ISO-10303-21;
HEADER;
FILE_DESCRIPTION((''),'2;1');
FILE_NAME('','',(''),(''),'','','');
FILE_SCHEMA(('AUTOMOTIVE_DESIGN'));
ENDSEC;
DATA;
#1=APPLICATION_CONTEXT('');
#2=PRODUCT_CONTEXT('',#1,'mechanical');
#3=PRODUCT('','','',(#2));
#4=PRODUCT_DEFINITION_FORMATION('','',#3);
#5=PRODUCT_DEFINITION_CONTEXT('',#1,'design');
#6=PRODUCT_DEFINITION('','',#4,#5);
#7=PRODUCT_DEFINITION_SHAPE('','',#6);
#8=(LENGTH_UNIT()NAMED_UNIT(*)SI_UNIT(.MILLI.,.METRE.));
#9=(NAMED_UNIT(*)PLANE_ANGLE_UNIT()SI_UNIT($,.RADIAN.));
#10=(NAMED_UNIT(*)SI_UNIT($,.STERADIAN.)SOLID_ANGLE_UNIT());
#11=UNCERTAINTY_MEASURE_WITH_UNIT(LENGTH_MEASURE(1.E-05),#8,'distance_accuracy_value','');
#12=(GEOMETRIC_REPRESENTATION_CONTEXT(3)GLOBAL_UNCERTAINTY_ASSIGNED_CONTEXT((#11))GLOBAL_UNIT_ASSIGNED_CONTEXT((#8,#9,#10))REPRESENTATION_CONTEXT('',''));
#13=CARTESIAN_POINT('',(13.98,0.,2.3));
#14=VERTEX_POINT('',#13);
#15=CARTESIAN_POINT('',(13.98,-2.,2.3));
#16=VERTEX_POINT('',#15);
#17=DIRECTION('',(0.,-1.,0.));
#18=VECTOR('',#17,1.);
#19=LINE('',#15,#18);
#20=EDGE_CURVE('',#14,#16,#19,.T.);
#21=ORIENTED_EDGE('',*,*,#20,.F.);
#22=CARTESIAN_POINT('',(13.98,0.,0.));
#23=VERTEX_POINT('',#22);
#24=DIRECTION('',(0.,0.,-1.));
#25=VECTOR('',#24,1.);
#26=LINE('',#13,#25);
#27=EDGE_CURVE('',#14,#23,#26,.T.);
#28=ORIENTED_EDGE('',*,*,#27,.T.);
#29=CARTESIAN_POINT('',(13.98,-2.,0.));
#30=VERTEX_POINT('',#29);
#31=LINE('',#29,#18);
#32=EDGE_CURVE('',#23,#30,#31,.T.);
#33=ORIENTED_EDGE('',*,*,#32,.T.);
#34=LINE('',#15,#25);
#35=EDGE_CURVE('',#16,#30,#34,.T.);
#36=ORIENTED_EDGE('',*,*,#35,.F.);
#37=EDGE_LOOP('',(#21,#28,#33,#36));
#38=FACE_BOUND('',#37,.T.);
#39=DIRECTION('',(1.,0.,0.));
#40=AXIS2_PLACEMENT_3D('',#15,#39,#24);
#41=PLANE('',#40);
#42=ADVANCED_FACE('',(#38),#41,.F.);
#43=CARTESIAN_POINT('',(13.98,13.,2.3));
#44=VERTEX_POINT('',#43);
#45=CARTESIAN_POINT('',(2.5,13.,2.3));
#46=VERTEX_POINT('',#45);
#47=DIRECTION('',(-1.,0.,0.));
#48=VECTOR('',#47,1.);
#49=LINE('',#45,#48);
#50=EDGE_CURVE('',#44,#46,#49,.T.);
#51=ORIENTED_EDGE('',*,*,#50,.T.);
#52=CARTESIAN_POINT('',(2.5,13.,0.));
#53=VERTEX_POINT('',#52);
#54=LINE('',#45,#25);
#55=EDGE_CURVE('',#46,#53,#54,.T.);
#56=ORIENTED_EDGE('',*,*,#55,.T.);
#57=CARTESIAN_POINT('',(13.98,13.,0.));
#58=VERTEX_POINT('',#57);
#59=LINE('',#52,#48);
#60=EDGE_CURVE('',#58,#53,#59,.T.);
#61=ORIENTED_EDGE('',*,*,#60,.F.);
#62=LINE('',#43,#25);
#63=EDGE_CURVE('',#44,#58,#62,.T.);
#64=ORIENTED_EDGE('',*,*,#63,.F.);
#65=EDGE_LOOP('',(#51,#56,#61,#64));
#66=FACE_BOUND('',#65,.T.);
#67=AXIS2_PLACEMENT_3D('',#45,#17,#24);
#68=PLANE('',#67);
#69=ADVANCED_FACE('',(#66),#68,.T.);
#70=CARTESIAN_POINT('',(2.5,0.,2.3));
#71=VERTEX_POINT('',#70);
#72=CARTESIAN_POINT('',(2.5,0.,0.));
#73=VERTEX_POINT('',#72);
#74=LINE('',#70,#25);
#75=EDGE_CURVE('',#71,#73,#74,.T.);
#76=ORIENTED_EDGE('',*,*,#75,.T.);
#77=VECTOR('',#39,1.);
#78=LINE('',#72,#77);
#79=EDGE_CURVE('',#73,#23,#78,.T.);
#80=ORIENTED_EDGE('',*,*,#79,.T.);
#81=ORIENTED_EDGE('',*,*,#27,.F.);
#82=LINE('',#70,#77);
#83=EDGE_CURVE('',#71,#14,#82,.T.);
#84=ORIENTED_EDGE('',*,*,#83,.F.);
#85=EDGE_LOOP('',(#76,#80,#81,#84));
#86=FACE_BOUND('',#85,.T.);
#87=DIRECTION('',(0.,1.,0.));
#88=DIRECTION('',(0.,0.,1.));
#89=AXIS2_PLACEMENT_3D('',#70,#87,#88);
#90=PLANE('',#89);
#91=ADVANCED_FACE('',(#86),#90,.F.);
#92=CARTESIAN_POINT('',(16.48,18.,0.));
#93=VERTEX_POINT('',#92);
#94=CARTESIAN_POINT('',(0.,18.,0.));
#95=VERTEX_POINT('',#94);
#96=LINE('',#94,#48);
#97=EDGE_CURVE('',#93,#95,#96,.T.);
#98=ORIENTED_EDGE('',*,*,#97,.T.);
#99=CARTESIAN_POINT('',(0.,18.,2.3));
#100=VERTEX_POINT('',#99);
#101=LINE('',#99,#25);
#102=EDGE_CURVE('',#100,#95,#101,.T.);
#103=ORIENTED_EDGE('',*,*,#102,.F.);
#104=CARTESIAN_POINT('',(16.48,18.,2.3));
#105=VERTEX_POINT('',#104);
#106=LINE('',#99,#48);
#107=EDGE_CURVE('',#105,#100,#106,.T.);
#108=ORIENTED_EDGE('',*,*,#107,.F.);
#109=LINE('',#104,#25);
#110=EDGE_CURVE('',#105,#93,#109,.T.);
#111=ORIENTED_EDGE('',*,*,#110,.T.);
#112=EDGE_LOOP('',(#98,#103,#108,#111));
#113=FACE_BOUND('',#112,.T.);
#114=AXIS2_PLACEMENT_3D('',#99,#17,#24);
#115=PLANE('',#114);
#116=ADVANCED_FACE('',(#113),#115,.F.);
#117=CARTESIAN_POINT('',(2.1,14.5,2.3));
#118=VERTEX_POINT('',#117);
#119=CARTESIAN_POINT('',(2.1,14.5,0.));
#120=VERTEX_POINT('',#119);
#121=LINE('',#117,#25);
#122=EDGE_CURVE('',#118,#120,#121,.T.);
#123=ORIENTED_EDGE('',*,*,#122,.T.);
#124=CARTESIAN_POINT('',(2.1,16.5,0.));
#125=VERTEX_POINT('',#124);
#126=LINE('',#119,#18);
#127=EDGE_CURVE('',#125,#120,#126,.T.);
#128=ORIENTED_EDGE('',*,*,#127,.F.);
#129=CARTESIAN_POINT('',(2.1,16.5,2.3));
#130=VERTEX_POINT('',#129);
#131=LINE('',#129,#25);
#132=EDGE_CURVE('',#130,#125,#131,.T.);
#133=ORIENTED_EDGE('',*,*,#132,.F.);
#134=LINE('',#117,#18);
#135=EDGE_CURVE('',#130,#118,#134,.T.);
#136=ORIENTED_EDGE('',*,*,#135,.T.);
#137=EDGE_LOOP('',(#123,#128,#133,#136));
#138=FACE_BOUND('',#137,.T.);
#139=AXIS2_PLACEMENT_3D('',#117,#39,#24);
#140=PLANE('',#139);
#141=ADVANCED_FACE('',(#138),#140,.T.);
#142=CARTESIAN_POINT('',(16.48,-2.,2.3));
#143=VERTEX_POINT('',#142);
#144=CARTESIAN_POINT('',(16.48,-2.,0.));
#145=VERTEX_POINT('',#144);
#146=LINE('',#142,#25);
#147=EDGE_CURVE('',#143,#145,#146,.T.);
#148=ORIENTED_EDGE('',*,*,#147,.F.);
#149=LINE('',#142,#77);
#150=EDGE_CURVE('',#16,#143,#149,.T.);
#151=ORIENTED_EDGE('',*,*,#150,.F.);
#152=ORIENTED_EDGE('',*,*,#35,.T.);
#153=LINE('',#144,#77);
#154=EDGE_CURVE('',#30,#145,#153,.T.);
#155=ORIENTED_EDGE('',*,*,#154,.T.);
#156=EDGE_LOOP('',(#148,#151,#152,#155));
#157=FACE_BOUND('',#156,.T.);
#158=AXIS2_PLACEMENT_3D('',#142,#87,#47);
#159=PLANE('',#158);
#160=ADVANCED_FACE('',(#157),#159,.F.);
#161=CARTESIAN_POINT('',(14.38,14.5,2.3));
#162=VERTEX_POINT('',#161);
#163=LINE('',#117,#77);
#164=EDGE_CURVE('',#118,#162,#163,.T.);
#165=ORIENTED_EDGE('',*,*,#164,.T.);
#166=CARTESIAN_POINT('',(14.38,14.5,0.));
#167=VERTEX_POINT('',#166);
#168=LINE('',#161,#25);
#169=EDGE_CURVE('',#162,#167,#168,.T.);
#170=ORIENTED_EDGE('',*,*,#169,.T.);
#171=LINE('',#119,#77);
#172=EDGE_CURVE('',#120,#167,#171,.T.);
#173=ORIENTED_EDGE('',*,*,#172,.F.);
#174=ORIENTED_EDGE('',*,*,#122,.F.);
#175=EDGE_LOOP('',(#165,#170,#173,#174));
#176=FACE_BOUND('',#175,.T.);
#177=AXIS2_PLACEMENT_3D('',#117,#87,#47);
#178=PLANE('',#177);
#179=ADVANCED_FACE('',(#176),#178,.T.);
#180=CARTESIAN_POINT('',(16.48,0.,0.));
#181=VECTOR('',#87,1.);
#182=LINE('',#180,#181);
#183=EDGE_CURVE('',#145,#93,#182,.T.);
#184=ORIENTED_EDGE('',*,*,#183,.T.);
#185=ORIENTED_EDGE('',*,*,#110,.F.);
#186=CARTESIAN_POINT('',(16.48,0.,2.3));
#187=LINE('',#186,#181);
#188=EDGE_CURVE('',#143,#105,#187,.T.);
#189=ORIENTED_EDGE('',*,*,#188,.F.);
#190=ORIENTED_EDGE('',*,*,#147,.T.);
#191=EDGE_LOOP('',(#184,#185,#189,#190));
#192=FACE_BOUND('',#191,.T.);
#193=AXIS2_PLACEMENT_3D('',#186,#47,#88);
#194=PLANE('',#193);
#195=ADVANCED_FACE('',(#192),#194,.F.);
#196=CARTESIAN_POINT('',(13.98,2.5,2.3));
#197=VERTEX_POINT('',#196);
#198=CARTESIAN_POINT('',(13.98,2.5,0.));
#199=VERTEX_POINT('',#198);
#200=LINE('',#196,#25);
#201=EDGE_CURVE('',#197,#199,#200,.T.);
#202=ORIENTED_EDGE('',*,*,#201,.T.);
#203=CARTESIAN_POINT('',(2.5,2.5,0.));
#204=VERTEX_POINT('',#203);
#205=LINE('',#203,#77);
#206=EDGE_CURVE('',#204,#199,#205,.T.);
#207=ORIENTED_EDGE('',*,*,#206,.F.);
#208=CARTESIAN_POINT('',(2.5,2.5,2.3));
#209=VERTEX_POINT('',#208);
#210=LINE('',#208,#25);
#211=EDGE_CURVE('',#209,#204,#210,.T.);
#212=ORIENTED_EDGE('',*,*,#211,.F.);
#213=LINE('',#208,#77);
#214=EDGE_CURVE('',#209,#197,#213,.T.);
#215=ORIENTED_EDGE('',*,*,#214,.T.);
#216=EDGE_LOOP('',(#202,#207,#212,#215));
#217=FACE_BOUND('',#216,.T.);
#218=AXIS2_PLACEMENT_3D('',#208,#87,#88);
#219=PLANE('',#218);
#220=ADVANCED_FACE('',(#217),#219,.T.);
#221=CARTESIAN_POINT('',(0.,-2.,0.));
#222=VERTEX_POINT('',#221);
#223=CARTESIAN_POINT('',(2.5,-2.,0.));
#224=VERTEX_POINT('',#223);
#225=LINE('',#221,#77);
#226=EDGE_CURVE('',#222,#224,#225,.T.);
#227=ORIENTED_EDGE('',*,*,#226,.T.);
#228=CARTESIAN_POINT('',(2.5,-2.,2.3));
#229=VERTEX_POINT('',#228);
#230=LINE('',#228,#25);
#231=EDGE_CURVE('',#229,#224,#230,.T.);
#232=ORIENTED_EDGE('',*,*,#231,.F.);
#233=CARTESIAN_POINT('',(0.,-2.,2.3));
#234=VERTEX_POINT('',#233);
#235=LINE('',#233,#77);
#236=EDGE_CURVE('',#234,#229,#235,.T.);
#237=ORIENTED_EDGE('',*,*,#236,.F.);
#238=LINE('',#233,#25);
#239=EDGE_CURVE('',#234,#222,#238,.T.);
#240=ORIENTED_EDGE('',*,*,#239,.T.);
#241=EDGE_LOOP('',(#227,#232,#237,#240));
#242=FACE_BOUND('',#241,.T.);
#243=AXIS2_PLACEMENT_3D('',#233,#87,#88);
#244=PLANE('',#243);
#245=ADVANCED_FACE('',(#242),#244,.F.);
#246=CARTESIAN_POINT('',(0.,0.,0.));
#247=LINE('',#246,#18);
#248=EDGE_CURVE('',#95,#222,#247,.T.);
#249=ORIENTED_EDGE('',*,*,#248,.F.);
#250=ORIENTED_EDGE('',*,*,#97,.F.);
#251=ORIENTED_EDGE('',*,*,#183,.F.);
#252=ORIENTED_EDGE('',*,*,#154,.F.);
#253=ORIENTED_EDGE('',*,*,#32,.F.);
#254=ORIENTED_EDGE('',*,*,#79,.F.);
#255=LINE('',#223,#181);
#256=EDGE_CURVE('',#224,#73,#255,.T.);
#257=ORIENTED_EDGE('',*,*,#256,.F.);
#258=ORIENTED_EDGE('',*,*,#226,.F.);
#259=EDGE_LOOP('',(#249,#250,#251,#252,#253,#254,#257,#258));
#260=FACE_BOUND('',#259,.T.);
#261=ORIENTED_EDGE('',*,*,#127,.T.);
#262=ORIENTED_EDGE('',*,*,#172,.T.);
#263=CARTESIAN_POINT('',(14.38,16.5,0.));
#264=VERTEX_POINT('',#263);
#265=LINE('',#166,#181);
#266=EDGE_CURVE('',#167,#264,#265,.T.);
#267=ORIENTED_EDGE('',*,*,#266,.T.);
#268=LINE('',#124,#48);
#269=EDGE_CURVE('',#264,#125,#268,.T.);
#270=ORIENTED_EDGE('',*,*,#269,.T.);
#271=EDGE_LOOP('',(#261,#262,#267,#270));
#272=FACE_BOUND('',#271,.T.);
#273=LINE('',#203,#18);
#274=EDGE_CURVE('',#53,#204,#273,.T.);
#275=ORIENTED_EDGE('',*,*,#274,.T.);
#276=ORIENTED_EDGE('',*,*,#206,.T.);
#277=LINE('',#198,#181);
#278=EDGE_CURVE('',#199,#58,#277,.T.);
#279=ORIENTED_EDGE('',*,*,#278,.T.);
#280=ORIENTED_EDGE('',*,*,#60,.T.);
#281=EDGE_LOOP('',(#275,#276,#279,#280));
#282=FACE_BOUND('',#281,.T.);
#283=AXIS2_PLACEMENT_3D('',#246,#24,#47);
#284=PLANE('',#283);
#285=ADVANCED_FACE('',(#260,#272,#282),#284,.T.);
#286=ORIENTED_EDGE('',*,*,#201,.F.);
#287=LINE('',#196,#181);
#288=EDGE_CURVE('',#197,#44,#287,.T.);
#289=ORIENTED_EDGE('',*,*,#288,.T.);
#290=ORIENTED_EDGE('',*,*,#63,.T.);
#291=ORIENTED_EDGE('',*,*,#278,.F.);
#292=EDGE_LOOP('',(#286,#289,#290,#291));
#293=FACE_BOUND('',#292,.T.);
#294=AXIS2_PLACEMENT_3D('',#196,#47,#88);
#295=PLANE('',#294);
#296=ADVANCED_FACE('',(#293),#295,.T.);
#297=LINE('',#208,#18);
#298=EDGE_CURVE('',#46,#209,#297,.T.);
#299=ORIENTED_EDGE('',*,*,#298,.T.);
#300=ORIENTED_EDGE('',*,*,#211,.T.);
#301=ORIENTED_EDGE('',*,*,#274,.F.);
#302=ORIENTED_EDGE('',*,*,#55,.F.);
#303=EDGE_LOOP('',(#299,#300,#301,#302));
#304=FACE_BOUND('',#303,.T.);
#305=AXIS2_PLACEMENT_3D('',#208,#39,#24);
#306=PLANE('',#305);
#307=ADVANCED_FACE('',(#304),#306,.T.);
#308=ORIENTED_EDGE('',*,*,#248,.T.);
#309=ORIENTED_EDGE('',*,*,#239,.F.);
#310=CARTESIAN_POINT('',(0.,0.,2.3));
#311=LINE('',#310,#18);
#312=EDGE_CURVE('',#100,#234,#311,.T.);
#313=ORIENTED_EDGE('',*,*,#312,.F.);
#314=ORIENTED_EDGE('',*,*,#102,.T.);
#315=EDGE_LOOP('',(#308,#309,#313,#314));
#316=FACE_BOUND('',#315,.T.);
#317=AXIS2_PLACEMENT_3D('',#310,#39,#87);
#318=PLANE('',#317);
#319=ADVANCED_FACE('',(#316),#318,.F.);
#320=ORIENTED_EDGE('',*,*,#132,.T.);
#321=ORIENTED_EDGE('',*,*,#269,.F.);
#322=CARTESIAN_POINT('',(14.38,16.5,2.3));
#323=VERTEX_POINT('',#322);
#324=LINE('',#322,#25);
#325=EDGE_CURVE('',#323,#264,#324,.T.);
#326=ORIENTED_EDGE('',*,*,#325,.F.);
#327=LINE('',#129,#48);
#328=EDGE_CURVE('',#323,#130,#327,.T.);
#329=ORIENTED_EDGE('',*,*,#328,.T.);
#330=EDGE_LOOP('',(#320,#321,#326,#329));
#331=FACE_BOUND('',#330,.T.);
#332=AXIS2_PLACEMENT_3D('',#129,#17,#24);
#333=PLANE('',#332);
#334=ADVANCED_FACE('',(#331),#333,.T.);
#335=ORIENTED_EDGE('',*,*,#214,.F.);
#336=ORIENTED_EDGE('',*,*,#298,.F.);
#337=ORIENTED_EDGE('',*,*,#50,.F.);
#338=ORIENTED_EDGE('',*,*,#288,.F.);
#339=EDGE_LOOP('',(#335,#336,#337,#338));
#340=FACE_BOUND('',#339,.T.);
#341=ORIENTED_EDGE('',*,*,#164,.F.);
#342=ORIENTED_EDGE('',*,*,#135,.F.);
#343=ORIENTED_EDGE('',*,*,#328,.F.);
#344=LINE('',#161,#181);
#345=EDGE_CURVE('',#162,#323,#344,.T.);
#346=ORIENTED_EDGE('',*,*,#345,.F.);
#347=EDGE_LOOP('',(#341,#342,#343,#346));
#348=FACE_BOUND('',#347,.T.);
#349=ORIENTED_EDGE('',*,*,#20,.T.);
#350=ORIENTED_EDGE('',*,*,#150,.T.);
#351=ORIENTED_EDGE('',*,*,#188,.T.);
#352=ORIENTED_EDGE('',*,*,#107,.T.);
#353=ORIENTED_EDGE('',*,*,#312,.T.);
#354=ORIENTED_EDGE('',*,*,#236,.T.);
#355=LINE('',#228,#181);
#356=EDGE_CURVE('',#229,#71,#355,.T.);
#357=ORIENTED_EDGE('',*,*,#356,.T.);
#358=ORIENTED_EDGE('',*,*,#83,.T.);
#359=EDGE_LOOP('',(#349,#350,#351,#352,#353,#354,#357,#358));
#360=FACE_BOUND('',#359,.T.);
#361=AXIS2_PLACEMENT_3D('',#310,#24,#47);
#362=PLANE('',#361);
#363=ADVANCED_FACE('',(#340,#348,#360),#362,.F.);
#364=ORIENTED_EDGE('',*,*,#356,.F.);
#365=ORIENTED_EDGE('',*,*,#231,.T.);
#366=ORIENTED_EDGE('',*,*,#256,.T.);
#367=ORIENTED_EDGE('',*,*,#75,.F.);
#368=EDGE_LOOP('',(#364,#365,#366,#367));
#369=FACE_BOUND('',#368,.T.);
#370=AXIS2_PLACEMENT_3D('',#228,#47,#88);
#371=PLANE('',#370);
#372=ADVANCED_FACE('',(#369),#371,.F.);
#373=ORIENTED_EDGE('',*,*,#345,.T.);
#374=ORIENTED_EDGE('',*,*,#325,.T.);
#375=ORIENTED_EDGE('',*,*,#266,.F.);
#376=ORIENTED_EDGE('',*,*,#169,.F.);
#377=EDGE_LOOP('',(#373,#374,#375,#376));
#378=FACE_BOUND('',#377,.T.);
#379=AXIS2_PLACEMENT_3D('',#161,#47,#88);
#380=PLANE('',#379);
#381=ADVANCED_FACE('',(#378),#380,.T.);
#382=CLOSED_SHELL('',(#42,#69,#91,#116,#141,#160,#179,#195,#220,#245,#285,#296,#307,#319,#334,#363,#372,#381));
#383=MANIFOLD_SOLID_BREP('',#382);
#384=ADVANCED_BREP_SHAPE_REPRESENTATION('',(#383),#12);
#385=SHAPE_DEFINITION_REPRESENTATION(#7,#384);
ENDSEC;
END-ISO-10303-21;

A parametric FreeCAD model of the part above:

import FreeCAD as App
import Part
import Sketcher
Q = App.Units.Quantity


def add_polygon(sketch, points):
    """Adds a closed chain of lines whose ends are joined by coincident constraints."""
    first, n = sketch.GeometryCount, len(points)
    for a, b in zip(points, points[1:] + points[:1]):
        sketch.addGeometry(Part.LineSegment(App.Vector(*a, 0), App.Vector(*b, 0)), False)
    for i in range(n):
        sketch.addConstraint(Sketcher.Constraint("Coincident", first + i, 2, first + (i + 1) % n, 1))

doc = App.newDocument("Part")
body = doc.addObject("PartDesign::Body", "Body")

# Sketch on XY plane
sketch1 = body.newObject("Sketcher::SketchObject", "Sketch")
sketch1.AttachmentSupport = (doc.getObject("XY_Plane"), [""])
sketch1.MapMode = "FlatFace"
add_polygon(sketch1, [(0, -2), (2.5, -2), (2.5, 0), (14, 0), (14, -2), (16.5, -2), (16.5, 18), (0, 18)])  # lines 0-7
add_polygon(sketch1, [(14, 2.5), (2.5, 2.5), (2.5, 13), (14, 13)])  # lines 8-11
add_polygon(sketch1, [(14.4, 14.5), (2.1, 14.5), (2.1, 16.5), (14.4, 16.5)])  # lines 12-15
sketch1.addConstraint([
    Sketcher.Constraint("Horizontal", 0),
    Sketcher.Constraint("Vertical", 1),
    Sketcher.Constraint("Horizontal", 2),
    Sketcher.Constraint("Vertical", 3),
    Sketcher.Constraint("Horizontal", 4),
    Sketcher.Constraint("Vertical", 5),
    Sketcher.Constraint("Horizontal", 6),
    Sketcher.Constraint("Vertical", 7),
    Sketcher.Constraint("Horizontal", 8),
    Sketcher.Constraint("Vertical", 9),
    Sketcher.Constraint("Horizontal", 10),
    Sketcher.Constraint("Vertical", 11),
    Sketcher.Constraint("Horizontal", 12),
    Sketcher.Constraint("Vertical", 13),
    Sketcher.Constraint("Horizontal", 14),
    Sketcher.Constraint("Vertical", 15),
    Sketcher.Constraint("PointOnObject", 1, 2, -1),
    Sketcher.Constraint("PointOnObject", 6, 2, -2),
    Sketcher.Constraint("Horizontal", 0, 2, 3, 2),
    Sketcher.Constraint("Vertical", 1, 2, 8, 2),
    Sketcher.Constraint("Vertical", 3, 2, 10, 2),
    Sketcher.Constraint("Equal", 0, 4),
    Sketcher.Constraint("Equal", 3, 13),
    Sketcher.Constraint("DistanceY", 1, 1, 1, 2, Q("2 mm")),
    Sketcher.Constraint("DistanceY", 5, 1, 5, 2, Q("20 mm")),
    Sketcher.Constraint("DistanceX", 0, 1, 0, 2, Q("2.5 mm")),
    Sketcher.Constraint("DistanceY", 9, 1, 9, 2, Q("10.5 mm")),
    Sketcher.Constraint("DistanceY", -1, 1, 9, 2, Q("13 mm")),
    Sketcher.Constraint("DistanceY", 8, 2, 12, 2, Q("12 mm")),
    Sketcher.Constraint("DistanceX", 2, 1, 2, 2, Q("11.48 mm")),
    Sketcher.Constraint("DistanceX", 12, 2, 12, 1, Q("12.28 mm")),
    Sketcher.Constraint("DistanceX", -1, 1, 12, 2, Q("2.1 mm")),
])
pad1 = body.newObject("PartDesign::Pad", "Pad")
pad1.Profile = sketch1
pad1.Length = 2.3

doc.recompute()
